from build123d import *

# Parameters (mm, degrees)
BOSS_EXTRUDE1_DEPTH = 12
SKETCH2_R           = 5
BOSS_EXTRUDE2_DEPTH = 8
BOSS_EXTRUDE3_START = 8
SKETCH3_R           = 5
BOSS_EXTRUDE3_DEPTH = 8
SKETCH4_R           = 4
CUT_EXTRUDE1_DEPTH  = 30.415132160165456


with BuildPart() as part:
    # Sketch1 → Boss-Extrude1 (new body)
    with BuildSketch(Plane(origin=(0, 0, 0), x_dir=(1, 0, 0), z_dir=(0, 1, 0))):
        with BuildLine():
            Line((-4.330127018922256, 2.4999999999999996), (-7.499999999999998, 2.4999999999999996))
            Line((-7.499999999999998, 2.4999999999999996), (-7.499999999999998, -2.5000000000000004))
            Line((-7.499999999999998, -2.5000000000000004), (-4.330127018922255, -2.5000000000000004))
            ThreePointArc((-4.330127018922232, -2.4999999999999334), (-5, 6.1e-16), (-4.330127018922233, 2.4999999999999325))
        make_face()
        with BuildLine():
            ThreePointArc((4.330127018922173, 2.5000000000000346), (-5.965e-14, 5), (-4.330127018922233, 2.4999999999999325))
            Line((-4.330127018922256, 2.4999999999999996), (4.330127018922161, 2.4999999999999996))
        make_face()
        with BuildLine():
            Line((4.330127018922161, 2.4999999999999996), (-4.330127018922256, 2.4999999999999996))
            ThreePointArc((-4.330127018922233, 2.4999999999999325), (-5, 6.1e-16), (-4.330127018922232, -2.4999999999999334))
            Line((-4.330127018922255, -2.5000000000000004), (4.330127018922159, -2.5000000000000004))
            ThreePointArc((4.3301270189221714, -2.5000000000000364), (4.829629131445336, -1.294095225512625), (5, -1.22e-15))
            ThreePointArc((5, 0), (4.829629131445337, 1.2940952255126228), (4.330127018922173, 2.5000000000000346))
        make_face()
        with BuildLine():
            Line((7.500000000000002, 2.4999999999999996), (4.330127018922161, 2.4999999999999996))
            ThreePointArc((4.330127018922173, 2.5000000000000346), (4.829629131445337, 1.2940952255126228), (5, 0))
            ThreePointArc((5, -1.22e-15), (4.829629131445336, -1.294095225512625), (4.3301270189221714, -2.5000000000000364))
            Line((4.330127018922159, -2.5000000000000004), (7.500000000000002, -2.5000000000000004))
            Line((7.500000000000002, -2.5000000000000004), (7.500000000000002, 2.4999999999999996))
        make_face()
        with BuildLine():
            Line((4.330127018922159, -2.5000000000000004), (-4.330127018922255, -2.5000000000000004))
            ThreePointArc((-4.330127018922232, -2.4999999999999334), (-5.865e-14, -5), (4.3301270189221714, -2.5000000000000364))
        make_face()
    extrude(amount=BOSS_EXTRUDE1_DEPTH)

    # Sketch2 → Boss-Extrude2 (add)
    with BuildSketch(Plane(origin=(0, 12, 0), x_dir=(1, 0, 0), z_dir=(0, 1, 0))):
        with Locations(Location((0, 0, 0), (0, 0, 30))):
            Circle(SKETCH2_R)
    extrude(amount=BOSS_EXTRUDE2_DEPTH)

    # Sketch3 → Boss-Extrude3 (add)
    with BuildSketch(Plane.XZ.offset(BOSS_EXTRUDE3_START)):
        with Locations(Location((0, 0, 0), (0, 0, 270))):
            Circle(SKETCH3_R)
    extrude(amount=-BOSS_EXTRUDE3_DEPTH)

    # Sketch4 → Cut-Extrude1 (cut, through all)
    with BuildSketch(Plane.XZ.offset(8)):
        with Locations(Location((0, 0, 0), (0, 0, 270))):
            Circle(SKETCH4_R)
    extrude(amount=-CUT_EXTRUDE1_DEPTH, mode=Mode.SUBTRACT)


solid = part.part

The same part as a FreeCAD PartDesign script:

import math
import FreeCAD as App
import Part
import Sketcher
Q = App.Units.Quantity

doc = App.newDocument("Part")
body = doc.addObject("PartDesign::Body", "Body")

# Sketch on XZ plane
sketch1 = body.newObject("Sketcher::SketchObject", "Sketch")
sketch1.AttachmentSupport = (doc.getObject("XZ_Plane"), [""])
sketch1.MapMode = "FlatFace"
sketch1.addGeometry(Part.LineSegment(App.Vector(-4.3, -2.5, 0), App.Vector(-7.5, -2.5, 0)), False)
sketch1.addGeometry(Part.LineSegment(App.Vector(-7.5, -2.5, 0), App.Vector(-7.5, 2.5, 0)), False)
sketch1.addGeometry(Part.LineSegment(App.Vector(-7.5, 2.5, 0), App.Vector(-4.3, 2.5, 0)), False)
sketch1.addGeometry(Part.ArcOfCircle(Part.Circle(App.Vector(0, 0, 0), App.Vector(0, 0, 1), 5), math.radians(30), math.radians(150)), False)
sketch1.addGeometry(Part.LineSegment(App.Vector(4.3, 2.5, 0), App.Vector(7.5, 2.5, 0)), False)
sketch1.addGeometry(Part.LineSegment(App.Vector(7.5, 2.5, 0), App.Vector(7.5, -2.5, 0)), False)
sketch1.addGeometry(Part.LineSegment(App.Vector(7.5, -2.5, 0), App.Vector(4.3, -2.5, 0)), False)
sketch1.addGeometry(Part.ArcOfCircle(Part.Circle(App.Vector(0, 0, 0), App.Vector(0, 0, 1), 5), math.radians(-150), math.radians(-30)), False)
sketch1.addConstraint(Sketcher.Constraint("Coincident", 0, 2, 1, 1))
sketch1.addConstraint(Sketcher.Constraint("Coincident", 1, 2, 2, 1))
sketch1.addConstraint(Sketcher.Constraint("Coincident", 2, 2, 3, 2))
sketch1.addConstraint(Sketcher.Constraint("Coincident", 3, 1, 4, 1))
sketch1.addConstraint(Sketcher.Constraint("Coincident", 4, 2, 5, 1))
sketch1.addConstraint(Sketcher.Constraint("Coincident", 5, 2, 6, 1))
sketch1.addConstraint(Sketcher.Constraint("Coincident", 6, 2, 7, 2))
sketch1.addConstraint(Sketcher.Constraint("Coincident", 7, 1, 0, 1))
sketch1.addConstraint(Sketcher.Constraint("Horizontal", 0))
sketch1.addConstraint(Sketcher.Constraint("Vertical", 1))
sketch1.addConstraint(Sketcher.Constraint("Horizontal", 2))
sketch1.addConstraint(Sketcher.Constraint("Horizontal", 4))
sketch1.addConstraint(Sketcher.Constraint("Vertical", 5))
sketch1.addConstraint(Sketcher.Constraint("Horizontal", 6))
sketch1.addConstraint(Sketcher.Constraint("Coincident", 3, 3, -1, 1))
sketch1.addConstraint(Sketcher.Constraint("Coincident", 7, 3, -1, 1))
sketch1.addConstraint(Sketcher.Constraint("Equal", 3, 7))
sketch1.addConstraint(Sketcher.Constraint("Symmetric", 0, 2, 4, 2, -1, 1))
sketch1.addConstraint(Sketcher.Constraint("Horizontal", 2, 2, 3, 1))
sketch1.addConstraint(Sketcher.Constraint("Horizontal", 0, 2, 5, 2))
sketch1.addConstraint(Sketcher.Constraint("Radius", 3, Q("5 mm")))
sketch1.addConstraint(Sketcher.Constraint("DistanceY", 1, 1, 1, 2, Q("5 mm")))
sketch1.addConstraint(Sketcher.Constraint("DistanceX", 1, 2, 4, 2, Q("15 mm")))
pad1 = body.newObject("PartDesign::Pad", "Pad")
pad1.Profile = sketch1
pad1.Length = 12
pad1.Reversed = True

# Sketch on XZ plane
sketch2 = body.newObject("Sketcher::SketchObject", "Sketch001")
sketch2.AttachmentSupport = (doc.getObject("XZ_Plane"), [""])
sketch2.MapMode = "FlatFace"
sketch2.AttachmentOffset = App.Placement(App.Vector(0, 0, -12), App.Rotation())
sketch2.addGeometry(Part.Circle(App.Vector(0, 0, 0), App.Vector(0, 0, 1), 5), False)
sketch2.addConstraint(Sketcher.Constraint("Coincident", 0, 3, -1, 1))
sketch2.addConstraint(Sketcher.Constraint("Diameter", 0, Q("10 mm")))
pad2 = body.newObject("PartDesign::Pad", "Pad001")
pad2.Profile = sketch2
pad2.Length = 8
pad2.Reversed = True

# Sketch on XZ plane
sketch3 = body.newObject("Sketcher::SketchObject", "Sketch002")
sketch3.AttachmentSupport = (doc.getObject("XZ_Plane"), [""])
sketch3.MapMode = "FlatFace"
sketch3.AttachmentOffset = App.Placement(App.Vector(0, 0, 8), App.Rotation())
sketch3.addGeometry(Part.Circle(App.Vector(0, 0, 0), App.Vector(0, 0, 1), 5), False)
sketch3.addConstraint(Sketcher.Constraint("Coincident", 0, 3, -1, 1))
sketch3.addConstraint(Sketcher.Constraint("Diameter", 0, Q("10 mm")))
pad3 = body.newObject("PartDesign::Pad", "Pad002")
pad3.Profile = sketch3
pad3.Length = 8
pad3.Reversed = True

# Sketch on XZ plane
sketch4 = body.newObject("Sketcher::SketchObject", "Sketch003")
sketch4.AttachmentSupport = (doc.getObject("XZ_Plane"), [""])
sketch4.MapMode = "FlatFace"
sketch4.AttachmentOffset = App.Placement(App.Vector(0, 0, 8), App.Rotation())
sketch4.addGeometry(Part.Circle(App.Vector(0, 0, 0), App.Vector(0, 0, 1), 4), False)
sketch4.addConstraint(Sketcher.Constraint("Coincident", 0, 3, -1, 1))
sketch4.addConstraint(Sketcher.Constraint("Diameter", 0, Q("8 mm")))
pocket1 = body.newObject("PartDesign::Pocket", "Pocket")
pocket1.Profile = sketch4
pocket1.Type = "ThroughAll"

doc.recompute()
